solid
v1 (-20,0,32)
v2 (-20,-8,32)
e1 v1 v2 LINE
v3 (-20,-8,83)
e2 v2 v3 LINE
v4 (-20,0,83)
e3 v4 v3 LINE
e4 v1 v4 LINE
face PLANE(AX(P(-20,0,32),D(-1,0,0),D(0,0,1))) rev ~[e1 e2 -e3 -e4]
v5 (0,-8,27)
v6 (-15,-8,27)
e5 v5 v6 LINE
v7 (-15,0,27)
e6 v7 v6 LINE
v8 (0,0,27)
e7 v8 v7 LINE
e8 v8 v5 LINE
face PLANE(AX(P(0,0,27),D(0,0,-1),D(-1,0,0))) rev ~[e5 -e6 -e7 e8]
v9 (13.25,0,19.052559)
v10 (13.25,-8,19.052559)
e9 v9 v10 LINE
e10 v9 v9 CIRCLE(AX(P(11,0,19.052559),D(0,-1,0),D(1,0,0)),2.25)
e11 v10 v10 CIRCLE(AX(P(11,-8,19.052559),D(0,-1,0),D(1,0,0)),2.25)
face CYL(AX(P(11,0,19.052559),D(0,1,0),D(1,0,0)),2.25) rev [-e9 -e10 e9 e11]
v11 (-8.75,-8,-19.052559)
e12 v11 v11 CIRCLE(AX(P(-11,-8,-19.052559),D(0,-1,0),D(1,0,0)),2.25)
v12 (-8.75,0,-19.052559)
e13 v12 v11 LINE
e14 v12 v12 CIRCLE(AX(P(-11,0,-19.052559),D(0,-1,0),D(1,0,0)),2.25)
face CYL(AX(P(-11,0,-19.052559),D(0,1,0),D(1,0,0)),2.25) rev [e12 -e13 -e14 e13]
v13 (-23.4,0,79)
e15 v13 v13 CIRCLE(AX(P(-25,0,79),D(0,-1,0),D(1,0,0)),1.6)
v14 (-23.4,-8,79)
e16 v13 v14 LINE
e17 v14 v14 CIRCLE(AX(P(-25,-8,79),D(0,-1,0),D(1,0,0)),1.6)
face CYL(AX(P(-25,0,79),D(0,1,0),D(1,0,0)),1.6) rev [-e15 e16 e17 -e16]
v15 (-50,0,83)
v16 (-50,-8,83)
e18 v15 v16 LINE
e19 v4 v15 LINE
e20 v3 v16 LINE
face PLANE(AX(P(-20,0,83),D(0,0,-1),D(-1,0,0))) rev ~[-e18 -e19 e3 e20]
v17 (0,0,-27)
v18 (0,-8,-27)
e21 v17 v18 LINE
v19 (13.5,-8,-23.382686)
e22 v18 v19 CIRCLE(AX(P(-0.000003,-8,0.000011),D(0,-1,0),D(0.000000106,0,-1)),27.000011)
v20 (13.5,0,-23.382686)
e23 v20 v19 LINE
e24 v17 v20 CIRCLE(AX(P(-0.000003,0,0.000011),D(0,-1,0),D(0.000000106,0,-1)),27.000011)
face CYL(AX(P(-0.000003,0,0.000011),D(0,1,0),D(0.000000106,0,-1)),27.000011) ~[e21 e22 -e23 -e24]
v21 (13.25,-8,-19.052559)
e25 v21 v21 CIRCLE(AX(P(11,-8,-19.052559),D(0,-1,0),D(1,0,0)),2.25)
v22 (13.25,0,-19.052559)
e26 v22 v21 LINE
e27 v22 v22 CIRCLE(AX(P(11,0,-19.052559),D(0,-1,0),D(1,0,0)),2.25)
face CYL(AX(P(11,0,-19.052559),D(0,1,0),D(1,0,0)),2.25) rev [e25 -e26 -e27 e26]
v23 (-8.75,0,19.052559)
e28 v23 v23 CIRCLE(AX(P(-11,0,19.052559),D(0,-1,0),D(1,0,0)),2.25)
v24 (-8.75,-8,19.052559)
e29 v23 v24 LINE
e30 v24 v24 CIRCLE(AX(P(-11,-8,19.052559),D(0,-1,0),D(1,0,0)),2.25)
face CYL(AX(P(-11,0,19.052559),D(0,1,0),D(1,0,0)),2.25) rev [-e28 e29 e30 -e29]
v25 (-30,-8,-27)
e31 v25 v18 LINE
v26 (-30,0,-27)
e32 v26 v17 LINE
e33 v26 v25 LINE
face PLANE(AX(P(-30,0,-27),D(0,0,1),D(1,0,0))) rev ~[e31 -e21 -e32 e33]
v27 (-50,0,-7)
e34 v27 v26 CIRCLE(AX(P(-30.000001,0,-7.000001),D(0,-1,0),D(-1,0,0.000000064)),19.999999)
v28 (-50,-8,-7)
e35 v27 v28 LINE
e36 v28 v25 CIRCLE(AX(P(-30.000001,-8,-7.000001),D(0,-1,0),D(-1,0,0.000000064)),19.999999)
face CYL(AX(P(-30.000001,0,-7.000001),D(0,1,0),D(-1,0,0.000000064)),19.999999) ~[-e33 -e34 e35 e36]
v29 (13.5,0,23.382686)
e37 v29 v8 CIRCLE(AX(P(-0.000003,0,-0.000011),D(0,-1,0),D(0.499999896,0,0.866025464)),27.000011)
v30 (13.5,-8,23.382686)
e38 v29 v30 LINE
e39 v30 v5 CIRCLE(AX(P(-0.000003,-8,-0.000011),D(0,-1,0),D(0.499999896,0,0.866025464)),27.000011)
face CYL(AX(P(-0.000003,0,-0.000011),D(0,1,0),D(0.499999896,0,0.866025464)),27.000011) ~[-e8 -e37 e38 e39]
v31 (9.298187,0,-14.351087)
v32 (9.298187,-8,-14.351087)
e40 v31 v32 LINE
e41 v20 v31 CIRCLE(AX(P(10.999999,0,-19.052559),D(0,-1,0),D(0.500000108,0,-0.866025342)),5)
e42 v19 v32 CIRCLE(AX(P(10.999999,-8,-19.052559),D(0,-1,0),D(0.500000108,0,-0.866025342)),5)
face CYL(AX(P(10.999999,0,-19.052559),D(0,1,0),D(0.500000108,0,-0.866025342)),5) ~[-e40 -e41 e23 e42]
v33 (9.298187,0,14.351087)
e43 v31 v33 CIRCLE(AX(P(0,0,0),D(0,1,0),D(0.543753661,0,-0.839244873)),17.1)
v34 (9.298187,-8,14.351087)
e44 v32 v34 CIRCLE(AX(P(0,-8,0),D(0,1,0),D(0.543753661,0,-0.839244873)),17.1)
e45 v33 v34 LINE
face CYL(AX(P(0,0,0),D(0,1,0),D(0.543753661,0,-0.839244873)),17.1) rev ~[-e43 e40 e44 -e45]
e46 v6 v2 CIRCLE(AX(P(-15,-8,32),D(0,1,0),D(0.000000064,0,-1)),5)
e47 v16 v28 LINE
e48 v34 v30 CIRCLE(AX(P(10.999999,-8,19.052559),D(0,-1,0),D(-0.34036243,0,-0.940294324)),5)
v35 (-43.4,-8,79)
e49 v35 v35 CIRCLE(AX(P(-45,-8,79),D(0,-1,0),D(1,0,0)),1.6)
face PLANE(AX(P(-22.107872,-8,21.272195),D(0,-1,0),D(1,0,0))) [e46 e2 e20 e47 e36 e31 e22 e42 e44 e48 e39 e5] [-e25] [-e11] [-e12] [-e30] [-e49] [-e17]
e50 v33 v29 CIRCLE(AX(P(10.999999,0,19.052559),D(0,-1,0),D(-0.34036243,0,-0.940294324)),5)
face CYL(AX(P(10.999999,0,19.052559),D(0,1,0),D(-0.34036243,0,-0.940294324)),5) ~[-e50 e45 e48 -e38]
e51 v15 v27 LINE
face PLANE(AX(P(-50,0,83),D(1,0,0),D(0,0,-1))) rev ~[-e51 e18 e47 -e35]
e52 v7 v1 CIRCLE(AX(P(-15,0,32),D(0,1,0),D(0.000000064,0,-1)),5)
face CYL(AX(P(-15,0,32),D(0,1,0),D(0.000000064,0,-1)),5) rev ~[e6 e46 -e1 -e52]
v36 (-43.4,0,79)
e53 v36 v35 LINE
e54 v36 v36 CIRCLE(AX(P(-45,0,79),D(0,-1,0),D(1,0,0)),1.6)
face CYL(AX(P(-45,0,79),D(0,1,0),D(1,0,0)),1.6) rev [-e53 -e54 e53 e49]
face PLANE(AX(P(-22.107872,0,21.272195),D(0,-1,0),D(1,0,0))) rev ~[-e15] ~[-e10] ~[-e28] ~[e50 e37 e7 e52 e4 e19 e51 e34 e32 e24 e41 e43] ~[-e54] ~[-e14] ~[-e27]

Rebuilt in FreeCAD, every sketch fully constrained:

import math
import FreeCAD as App
import Part
import Sketcher
Q = App.Units.Quantity

doc = App.newDocument("Part")
params = doc.addObject("Spreadsheet::Sheet", "Params")
for row, (alias, value) in enumerate([
    ("sketch1_radius", "5 mm"),
    ("sketch1_radius2", "5 mm"),
    ("sketch1_radius3", "19.999999 mm"),
    ("sketch1_radius4", "5 mm"),
    ("sketch1_diameter", "4.5 mm"),
    ("pad1_length", "8 mm"),
], start=1):
    params.set(f"A{row}", alias)
    params.set(f"B{row}", "=" + value)
    params.setAlias(f"B{row}", alias)

body = doc.addObject("PartDesign::Body", "Body")

# Sketch on XZ plane
sketch1 = body.newObject("Sketcher::SketchObject", "Sketch")
sketch1.AttachmentSupport = (doc.getObject("XZ_Plane"), [""])
sketch1.MapMode = "FlatFace"
sketch1.addGeometry(Part.ArcOfCircle(Part.Circle(App.Vector(0, 0, 0), App.Vector(0, 0, 1), 17.1), math.radians(57.060466), math.radians(302.939534)), False)
sketch1.addGeometry(Part.ArcOfCircle(Part.Circle(App.Vector(10.999999, 19.052559, 0), App.Vector(0, 0, 1), 5), math.radians(-109.898957), math.radians(59.999993)), False)
sketch1.addGeometry(Part.ArcOfCircle(Part.Circle(App.Vector(-0.000003, -0.000011, 0), App.Vector(0, 0, 1), 27.000011), math.radians(60.000007), math.radians(89.999994)), False)
sketch1.addGeometry(Part.LineSegment(App.Vector(0, 27, 0), App.Vector(-15, 27, 0)), False)
sketch1.addGeometry(Part.ArcOfCircle(Part.Circle(App.Vector(-15, 32, 0), App.Vector(0, 0, 1), 5), math.radians(179.999996), math.radians(270.000004)), False)
sketch1.addGeometry(Part.LineSegment(App.Vector(-20, 32, 0), App.Vector(-20, 83, 0)), False)
sketch1.addGeometry(Part.LineSegment(App.Vector(-20, 83, 0), App.Vector(-50, 83, 0)), False)
sketch1.addGeometry(Part.LineSegment(App.Vector(-50, 83, 0), App.Vector(-50, -7, 0)), False)
sketch1.addGeometry(Part.ArcOfCircle(Part.Circle(App.Vector(-30.000001, -7.000001, 0), App.Vector(0, 0, 1), 19.999999), math.radians(179.999996), math.radians(270.000004)), False)
sketch1.addGeometry(Part.LineSegment(App.Vector(-30, -27, 0), App.Vector(0, -27, 0)), False)
sketch1.addGeometry(Part.ArcOfCircle(Part.Circle(App.Vector(-0.000003, 0.000011, 0), App.Vector(0, 0, 1), 27.000011), math.radians(-89.999994), math.radians(-60.000007)), False)
sketch1.addGeometry(Part.ArcOfCircle(Part.Circle(App.Vector(10.999999, -19.052559, 0), App.Vector(0, 0, 1), 5), math.radians(-59.999993), math.radians(109.898957)), False)
sketch1.addGeometry(Part.Circle(App.Vector(-11, -19.052559, 0), App.Vector(0, 0, 1), 2.25), False)
sketch1.addGeometry(Part.Circle(App.Vector(11, -19.052559, 0), App.Vector(0, 0, 1), 2.25), False)
sketch1.addGeometry(Part.Circle(App.Vector(-11, 19.052559, 0), App.Vector(0, 0, 1), 2.25), False)
sketch1.addGeometry(Part.Circle(App.Vector(11, 19.052559, 0), App.Vector(0, 0, 1), 2.25), False)
sketch1.addGeometry(Part.Circle(App.Vector(-45, 79, 0), App.Vector(0, 0, 1), 1.6), False)
sketch1.addGeometry(Part.Circle(App.Vector(-25, 79, 0), App.Vector(0, 0, 1), 1.6), False)
sketch1.addConstraint(Sketcher.Constraint("Coincident", 0, 1, 1, 1))
sketch1.addConstraint(Sketcher.Constraint("Coincident", 1, 2, 2, 1))
sketch1.addConstraint(Sketcher.Constraint("Coincident", 2, 2, 3, 1))
sketch1.addConstraint(Sketcher.Constraint("Coincident", 3, 2, 4, 2))
sketch1.addConstraint(Sketcher.Constraint("Coincident", 4, 1, 5, 1))
sketch1.addConstraint(Sketcher.Constraint("Coincident", 5, 2, 6, 1))
sketch1.addConstraint(Sketcher.Constraint("Coincident", 6, 2, 7, 1))
sketch1.addConstraint(Sketcher.Constraint("Coincident", 7, 2, 8, 1))
sketch1.addConstraint(Sketcher.Constraint("Coincident", 8, 2, 9, 1))
sketch1.addConstraint(Sketcher.Constraint("Coincident", 9, 2, 10, 1))
sketch1.addConstraint(Sketcher.Constraint("Coincident", 10, 2, 11, 1))
sketch1.addConstraint(Sketcher.Constraint("Coincident", 11, 2, 0, 2))
sketch1.addConstraint(Sketcher.Constraint("Horizontal", 3))
sketch1.addConstraint(Sketcher.Constraint("Vertical", 5))
sketch1.addConstraint(Sketcher.Constraint("Horizontal", 6))
sketch1.addConstraint(Sketcher.Constraint("Vertical", 7))
sketch1.addConstraint(Sketcher.Constraint("Horizontal", 9))
sketch1.addConstraint(Sketcher.Constraint("Coincident", 0, 3, -1, 1))
sketch1.addConstraint(Sketcher.Constraint("Coincident", 13, 3, 11, 3))
sketch1.addConstraint(Sketcher.Constraint("Coincident", 15, 3, 1, 3))
sketch1.addConstraint(Sketcher.Constraint("PointOnObject", 2, 2, -2))
sketch1.addConstraint(Sketcher.Constraint("PointOnObject", 9, 2, -2))
sketch1.addConstraint(Sketcher.Constraint("Radius", 1, Q("5 mm")))
sketch1.addConstraint(Sketcher.Constraint("Radius", 4, Q("5 mm")))
sketch1.addConstraint(Sketcher.Constraint("Radius", 8, Q("19.999999 mm")))
sketch1.addConstraint(Sketcher.Constraint("Radius", 11, Q("5 mm")))
sketch1.addConstraint(Sketcher.Constraint("Diameter", 12, Q("4.5 mm")))
sketch1.addConstraint(Sketcher.Constraint("Diameter", 13, Q("4.5 mm")))
sketch1.addConstraint(Sketcher.Constraint("Diameter", 14, Q("4.5 mm")))
sketch1.addConstraint(Sketcher.Constraint("Diameter", 15, Q("4.5 mm")))
sketch1.addConstraint(Sketcher.Constraint("Diameter", 16, Q("3.2 mm")))
sketch1.addConstraint(Sketcher.Constraint("Diameter", 17, Q("3.2 mm")))
sketch1.addConstraint(Sketcher.Constraint("Radius", 0, Q("17.1 mm")))
sketch1.addConstraint(Sketcher.Constraint("DistanceX", 3, 2, 3, 1, Q("15 mm")))
sketch1.addConstraint(Sketcher.Constraint("DistanceX", 6, 2, 6, 1, Q("30 mm")))
sketch1.addConstraint(Sketcher.Constraint("DistanceX", 9, 1, 9, 2, Q("30 mm")))
sketch1.addConstraint(Sketcher.Constraint("DistanceY", 5, 1, 5, 2, Q("51 mm")))
sketch1.addConstraint(Sketcher.Constraint("DistanceY", 7, 2, 7, 1, Q("90 mm")))
sketch1.addConstraint(Sketcher.Constraint("DistanceX", -1, 1, 1, 3, Q("10.999999 mm")))
sketch1.addConstraint(Sketcher.Constraint("DistanceX", 4, 3, -1, 1, Q("15 mm")))
sketch1.addConstraint(Sketcher.Constraint("DistanceY", -1, 1, 4, 3, Q("32 mm")))
sketch1.addConstraint(Sketcher.Constraint("DistanceY", 8, 3, -1, 1, Q("7.000001 mm")))
sketch1.addConstraint(Sketcher.Constraint("DistanceX", -1, 1, 11, 3, Q("10.999999 mm")))
sketch1.addConstraint(Sketcher.Constraint("DistanceX", 12, 3, -1, 1, Q("11 mm")))
sketch1.addConstraint(Sketcher.Constraint("DistanceX", 14, 3, -1, 1, Q("11 mm")))
sketch1.addConstraint(Sketcher.Constraint("DistanceX", 16, 3, -1, 1, Q("45 mm")))
sketch1.addConstraint(Sketcher.Constraint("DistanceY", -1, 1, 16, 3, Q("79 mm")))
sketch1.addConstraint(Sketcher.Constraint("DistanceX", 17, 3, -1, 1, Q("25 mm")))
sketch1.addConstraint(Sketcher.Constraint("DistanceY", -1, 1, 17, 3, Q("79 mm")))
sketch1.addConstraint(Sketcher.Constraint("DistanceY", -1, 1, 4, 1, Q("32 mm")))
sketch1.addConstraint(Sketcher.Constraint("DistanceX", 8, 3, 2, 3, Q("29.999998 mm")))
sketch1.addConstraint(Sketcher.Constraint("DistanceX", 8, 3, 10, 3, Q("29.999998 mm")))
sketch1.addConstraint(Sketcher.Constraint("DistanceX", -1, 1, 1, 2, Q("13.5 mm")))
sketch1.addConstraint(Sketcher.Constraint("DistanceX", -1, 1, 10, 2, Q("13.5 mm")))
sketch1.addConstraint(Sketcher.Constraint("Radius", 2, Q("27.000011 mm")))
sketch1.addConstraint(Sketcher.Constraint("Radius", 10, Q("27.000011 mm")))
sketch1.addConstraint(Sketcher.Constraint("DistanceY", 12, 3, -1, 1, Q("19.052559 mm")))
sketch1.addConstraint(Sketcher.Constraint("DistanceY", -1, 1, 14, 3, Q("19.052559 mm")))
sketch1.setExpression("Constraints[22]", "Params.sketch1_radius")
sketch1.setExpression("Constraints[23]", "Params.sketch1_radius2")
sketch1.setExpression("Constraints[24]", "Params.sketch1_radius3")
sketch1.setExpression("Constraints[25]", "Params.sketch1_radius4")
sketch1.setExpression("Constraints[26]", "Params.sketch1_diameter")
pad1 = body.newObject("PartDesign::Pad", "Pad")
pad1.Profile = sketch1
pad1.setExpression("Length", "Params.pad1_length")

doc.recompute()
